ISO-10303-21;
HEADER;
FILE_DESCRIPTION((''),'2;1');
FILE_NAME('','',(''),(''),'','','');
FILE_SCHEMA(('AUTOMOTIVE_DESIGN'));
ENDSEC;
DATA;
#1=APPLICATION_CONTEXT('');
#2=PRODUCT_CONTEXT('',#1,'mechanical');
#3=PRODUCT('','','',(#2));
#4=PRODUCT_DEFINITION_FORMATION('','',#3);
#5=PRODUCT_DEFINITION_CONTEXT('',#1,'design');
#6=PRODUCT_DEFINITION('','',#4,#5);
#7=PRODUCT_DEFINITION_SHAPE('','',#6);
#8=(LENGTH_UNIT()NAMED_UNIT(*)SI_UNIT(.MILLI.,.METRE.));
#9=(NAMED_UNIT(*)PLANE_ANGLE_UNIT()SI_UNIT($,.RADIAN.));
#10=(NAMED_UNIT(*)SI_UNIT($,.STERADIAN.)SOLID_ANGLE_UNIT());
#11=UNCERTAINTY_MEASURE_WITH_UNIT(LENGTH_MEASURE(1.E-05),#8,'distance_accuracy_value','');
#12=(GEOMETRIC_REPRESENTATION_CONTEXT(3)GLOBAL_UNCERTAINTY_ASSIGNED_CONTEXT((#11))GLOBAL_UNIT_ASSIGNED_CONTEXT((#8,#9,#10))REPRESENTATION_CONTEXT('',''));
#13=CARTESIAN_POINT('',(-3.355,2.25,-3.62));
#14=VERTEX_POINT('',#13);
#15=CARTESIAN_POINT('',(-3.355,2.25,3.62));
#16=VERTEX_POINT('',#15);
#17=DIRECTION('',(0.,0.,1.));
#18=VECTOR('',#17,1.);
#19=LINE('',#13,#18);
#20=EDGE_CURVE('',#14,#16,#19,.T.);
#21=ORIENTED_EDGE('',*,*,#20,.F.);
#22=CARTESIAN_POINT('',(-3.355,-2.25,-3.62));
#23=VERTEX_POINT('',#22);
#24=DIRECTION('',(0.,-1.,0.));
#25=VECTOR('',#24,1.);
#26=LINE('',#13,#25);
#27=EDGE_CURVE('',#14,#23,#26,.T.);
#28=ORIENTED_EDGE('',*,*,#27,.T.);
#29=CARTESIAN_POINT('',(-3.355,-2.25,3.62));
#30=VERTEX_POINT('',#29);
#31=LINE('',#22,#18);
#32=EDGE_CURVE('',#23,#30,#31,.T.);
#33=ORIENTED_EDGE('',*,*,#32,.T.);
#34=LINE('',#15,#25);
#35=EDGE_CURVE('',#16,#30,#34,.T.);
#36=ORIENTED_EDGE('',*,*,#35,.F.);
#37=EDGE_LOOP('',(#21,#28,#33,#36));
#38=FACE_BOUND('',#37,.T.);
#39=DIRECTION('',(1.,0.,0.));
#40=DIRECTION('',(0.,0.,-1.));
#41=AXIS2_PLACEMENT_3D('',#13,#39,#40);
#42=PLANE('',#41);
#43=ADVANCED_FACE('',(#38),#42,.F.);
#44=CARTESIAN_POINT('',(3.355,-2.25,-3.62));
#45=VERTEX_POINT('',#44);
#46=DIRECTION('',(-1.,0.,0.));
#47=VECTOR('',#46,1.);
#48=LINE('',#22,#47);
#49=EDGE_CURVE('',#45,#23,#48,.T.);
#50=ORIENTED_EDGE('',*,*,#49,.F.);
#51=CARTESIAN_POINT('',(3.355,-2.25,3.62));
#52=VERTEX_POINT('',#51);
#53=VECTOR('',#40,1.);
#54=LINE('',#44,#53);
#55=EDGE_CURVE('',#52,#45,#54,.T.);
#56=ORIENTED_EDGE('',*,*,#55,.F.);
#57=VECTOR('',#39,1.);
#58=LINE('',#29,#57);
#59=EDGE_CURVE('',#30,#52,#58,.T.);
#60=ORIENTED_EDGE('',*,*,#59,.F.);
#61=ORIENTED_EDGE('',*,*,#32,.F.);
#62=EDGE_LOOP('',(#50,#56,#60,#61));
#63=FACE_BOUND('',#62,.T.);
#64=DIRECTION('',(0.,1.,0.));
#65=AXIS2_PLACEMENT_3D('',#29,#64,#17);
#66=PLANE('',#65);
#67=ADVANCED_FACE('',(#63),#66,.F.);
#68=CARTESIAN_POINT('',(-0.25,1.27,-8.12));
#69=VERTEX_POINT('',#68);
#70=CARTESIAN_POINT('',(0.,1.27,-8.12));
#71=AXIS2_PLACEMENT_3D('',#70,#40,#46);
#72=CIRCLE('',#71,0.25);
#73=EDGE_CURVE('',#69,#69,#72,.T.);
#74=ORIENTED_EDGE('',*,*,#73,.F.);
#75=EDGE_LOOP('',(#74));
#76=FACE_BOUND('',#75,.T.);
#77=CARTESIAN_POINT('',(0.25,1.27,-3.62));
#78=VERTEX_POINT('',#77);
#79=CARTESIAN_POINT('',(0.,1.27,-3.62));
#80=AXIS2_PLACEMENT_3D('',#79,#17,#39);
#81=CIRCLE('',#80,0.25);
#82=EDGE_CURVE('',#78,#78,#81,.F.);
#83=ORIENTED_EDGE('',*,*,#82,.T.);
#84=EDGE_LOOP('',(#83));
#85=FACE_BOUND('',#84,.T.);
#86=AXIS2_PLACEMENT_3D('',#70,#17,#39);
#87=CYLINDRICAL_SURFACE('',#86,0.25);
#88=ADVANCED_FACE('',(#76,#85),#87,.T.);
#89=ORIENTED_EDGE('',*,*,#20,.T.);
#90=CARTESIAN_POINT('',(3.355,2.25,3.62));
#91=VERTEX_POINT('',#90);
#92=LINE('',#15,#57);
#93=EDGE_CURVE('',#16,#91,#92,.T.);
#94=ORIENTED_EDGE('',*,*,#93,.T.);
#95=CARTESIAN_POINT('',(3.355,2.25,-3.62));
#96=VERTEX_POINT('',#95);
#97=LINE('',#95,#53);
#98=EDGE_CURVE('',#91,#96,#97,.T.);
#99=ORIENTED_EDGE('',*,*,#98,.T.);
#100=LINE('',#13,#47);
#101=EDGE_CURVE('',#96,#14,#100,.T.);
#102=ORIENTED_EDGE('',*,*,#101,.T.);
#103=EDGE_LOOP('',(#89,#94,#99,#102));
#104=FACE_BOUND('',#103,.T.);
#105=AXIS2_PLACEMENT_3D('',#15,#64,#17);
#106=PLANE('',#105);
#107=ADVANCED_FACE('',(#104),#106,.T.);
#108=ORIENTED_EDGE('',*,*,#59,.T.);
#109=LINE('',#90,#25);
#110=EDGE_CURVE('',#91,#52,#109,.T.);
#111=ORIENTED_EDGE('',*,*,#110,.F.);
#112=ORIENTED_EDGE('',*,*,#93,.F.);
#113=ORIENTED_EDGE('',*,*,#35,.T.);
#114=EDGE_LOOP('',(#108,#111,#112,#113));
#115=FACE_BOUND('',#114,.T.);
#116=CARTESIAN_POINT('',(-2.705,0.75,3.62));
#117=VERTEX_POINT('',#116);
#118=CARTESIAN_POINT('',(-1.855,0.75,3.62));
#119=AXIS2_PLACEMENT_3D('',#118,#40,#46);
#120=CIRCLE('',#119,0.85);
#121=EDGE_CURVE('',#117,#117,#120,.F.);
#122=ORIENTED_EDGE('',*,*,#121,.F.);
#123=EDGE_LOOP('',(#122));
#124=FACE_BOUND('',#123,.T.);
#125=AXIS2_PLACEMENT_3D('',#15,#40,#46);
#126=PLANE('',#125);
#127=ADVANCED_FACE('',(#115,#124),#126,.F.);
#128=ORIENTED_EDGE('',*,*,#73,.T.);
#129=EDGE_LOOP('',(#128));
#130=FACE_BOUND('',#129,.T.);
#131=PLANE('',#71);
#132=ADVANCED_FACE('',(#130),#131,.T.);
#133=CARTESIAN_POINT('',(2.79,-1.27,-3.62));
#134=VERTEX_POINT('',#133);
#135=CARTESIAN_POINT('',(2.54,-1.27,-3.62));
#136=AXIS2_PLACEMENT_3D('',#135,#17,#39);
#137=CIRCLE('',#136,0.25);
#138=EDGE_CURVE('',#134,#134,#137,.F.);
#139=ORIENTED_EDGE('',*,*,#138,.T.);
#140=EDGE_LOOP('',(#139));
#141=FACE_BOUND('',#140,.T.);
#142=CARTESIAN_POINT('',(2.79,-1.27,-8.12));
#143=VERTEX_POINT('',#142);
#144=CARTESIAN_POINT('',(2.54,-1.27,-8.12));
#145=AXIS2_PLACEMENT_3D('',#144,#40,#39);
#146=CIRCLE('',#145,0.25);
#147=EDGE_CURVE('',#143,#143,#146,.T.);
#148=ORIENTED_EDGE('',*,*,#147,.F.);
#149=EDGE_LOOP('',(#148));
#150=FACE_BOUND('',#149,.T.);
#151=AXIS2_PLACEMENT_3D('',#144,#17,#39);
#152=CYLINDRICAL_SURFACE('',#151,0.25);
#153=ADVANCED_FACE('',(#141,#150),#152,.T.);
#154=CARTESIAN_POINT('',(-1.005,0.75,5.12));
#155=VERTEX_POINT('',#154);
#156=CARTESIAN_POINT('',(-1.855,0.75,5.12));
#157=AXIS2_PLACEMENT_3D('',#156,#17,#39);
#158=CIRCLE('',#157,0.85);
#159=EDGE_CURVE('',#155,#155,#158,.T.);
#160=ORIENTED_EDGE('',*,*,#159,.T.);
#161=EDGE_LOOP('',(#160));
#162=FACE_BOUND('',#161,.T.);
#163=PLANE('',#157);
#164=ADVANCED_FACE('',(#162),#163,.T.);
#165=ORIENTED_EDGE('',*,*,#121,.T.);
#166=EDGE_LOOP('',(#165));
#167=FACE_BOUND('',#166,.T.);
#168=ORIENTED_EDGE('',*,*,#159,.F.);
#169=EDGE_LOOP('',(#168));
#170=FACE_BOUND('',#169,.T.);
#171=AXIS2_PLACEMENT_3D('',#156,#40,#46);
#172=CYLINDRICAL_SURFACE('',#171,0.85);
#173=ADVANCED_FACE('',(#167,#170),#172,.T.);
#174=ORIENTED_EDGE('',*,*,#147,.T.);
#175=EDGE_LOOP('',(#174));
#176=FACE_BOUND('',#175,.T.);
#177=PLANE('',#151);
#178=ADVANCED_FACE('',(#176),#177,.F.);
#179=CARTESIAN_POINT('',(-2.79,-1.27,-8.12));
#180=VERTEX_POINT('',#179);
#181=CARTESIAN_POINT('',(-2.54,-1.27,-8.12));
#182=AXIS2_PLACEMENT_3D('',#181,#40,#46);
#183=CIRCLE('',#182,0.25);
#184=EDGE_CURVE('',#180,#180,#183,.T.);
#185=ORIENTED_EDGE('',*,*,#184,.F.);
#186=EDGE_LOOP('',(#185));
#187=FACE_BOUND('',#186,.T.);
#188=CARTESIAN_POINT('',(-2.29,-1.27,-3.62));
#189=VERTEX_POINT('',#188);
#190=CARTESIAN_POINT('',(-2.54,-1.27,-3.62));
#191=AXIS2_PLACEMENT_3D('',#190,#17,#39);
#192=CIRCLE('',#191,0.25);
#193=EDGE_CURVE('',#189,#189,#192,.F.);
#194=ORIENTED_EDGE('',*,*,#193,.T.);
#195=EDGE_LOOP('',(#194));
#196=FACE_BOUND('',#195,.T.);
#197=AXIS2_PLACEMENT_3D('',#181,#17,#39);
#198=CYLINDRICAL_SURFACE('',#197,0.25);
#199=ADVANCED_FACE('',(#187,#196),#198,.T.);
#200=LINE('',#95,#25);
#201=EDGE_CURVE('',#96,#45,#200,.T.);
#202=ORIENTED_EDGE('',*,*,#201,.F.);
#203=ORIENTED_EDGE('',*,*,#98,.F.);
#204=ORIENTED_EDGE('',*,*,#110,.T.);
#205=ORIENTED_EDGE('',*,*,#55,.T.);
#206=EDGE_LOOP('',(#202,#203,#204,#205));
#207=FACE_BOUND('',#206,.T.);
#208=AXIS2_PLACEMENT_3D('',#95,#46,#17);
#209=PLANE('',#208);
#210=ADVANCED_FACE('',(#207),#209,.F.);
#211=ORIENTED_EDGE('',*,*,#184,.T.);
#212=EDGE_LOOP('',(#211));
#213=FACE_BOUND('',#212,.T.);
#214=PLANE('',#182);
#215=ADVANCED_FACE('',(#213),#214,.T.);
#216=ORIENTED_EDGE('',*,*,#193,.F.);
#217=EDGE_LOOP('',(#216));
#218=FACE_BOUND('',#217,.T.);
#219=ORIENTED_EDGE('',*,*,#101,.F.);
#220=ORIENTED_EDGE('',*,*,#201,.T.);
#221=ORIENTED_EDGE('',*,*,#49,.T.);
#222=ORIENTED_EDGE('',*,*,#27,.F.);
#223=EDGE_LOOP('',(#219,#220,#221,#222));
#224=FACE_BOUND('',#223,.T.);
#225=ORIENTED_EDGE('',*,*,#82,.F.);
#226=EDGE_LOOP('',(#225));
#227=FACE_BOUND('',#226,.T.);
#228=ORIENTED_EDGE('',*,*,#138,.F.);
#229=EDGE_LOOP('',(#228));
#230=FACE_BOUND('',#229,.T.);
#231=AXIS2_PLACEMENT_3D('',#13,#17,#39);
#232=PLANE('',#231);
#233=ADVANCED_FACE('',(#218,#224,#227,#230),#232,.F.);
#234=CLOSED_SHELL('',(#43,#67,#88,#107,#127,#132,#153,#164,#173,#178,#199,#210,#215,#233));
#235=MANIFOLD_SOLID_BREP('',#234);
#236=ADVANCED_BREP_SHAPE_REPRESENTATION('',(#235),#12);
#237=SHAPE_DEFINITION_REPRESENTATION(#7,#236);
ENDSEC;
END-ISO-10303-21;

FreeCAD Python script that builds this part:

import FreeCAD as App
import Part
import Sketcher

V = App.Vector

doc = App.newDocument("Part")
body = doc.addObject("PartDesign::Body", "Body")

# Sketch on XZ plane
sketch1 = body.newObject("Sketcher::SketchObject", "Sketch")
sketch1.AttachmentSupport = (doc.getObject("XZ_Plane"), [""])
sketch1.MapMode = "FlatFace"
sketch1.addGeometry([
    Part.LineSegment(V(-3, -4, 0), V(-3, 4, 0)),
    Part.LineSegment(V(-3, 4, 0), V(3, 4, 0)),
    Part.LineSegment(V(3, 4, 0), V(3, -4, 0)),
    Part.LineSegment(V(3, -4, 0), V(-3, -4, 0)),
], False)
sketch1.addConstraint([
    Sketcher.Constraint("Coincident", 0, 2, 1, 1),
    Sketcher.Constraint("Coincident", 1, 2, 2, 1),
    Sketcher.Constraint("Coincident", 2, 2, 3, 1),
    Sketcher.Constraint("Coincident", 3, 2, 0, 1),
    Sketcher.Constraint("Vertical", 0),
    Sketcher.Constraint("Horizontal", 1),
    Sketcher.Constraint("Vertical", 2),
    Sketcher.Constraint("Horizontal", 3),
    Sketcher.Constraint("Symmetric", 0, 2, 2, 2, -1, 1),
    Sketcher.Constraint("DistanceX", 1, 1, 1, 2, 6.71),
    Sketcher.Constraint("DistanceY", 0, 1, 0, 2, 7.24),
])
pad1 = body.newObject("PartDesign::Pad", "Pad")
pad1.Profile = sketch1
pad1.Type = "TwoLengths"
pad1.Length = 2.25
pad1.Length2 = 2.25
pad1.Reversed = True

# Sketch on XY plane
sketch2 = body.newObject("Sketcher::SketchObject", "Sketch001")
sketch2.AttachmentSupport = (doc.getObject("XY_Plane"), [""])
sketch2.MapMode = "FlatFace"
sketch2.AttachmentOffset = App.Placement(V(0, 0, -3.62), App.Rotation())
sketch2.addGeometry([
    Part.Circle(V(0, 1.27, 0), V(0, 0, 1), 0.25),
    Part.Circle(V(-2.54, -1.27, 0), V(0, 0, 1), 0.25),
    Part.Circle(V(2.54, -1.27, 0), V(0, 0, 1), 0.25),
], False)
sketch2.addConstraint([
    Sketcher.Constraint("Equal", 0, 1),
    Sketcher.Constraint("Equal", 1, 2),
    Sketcher.Constraint("Symmetric", 1, 3, 2, 3, -2),
    Sketcher.Constraint("PointOnObject", 0, 3, -2),
    Sketcher.Constraint("Diameter", 0, 0.5),
    Sketcher.Constraint("DistanceY", -1, 1, 0, 3, 1.27),
    Sketcher.Constraint("DistanceX", 1, 3, -1, 1, 2.54),
    Sketcher.Constraint("DistanceY", 1, 3, -1, 1, 1.27),
])
pad2 = body.newObject("PartDesign::Pad", "Pad001")
pad2.Profile = sketch2
pad2.Length = 4.5
pad2.Reversed = True

# Sketch on XY plane
sketch3 = body.newObject("Sketcher::SketchObject", "Sketch002")
sketch3.AttachmentSupport = (doc.getObject("XY_Plane"), [""])
sketch3.MapMode = "FlatFace"
sketch3.AttachmentOffset = App.Placement(V(0, 0, 3.62), App.Rotation())
sketch3.addGeometry(Part.Circle(V(-1.9, 0.8, 0), V(0, 0, 1), 0.8), False)
sketch3.addConstraint([
    Sketcher.Constraint("Diameter", 0, 1.7),
    Sketcher.Constraint("DistanceY", -1, 1, 0, 3, 0.75),
    Sketcher.Constraint("DistanceX", 0, 3, -1, 1, 1.855),
])
pad3 = body.newObject("PartDesign::Pad", "Pad002")
pad3.Profile = sketch3
pad3.Length = 1.5

doc.recompute()
